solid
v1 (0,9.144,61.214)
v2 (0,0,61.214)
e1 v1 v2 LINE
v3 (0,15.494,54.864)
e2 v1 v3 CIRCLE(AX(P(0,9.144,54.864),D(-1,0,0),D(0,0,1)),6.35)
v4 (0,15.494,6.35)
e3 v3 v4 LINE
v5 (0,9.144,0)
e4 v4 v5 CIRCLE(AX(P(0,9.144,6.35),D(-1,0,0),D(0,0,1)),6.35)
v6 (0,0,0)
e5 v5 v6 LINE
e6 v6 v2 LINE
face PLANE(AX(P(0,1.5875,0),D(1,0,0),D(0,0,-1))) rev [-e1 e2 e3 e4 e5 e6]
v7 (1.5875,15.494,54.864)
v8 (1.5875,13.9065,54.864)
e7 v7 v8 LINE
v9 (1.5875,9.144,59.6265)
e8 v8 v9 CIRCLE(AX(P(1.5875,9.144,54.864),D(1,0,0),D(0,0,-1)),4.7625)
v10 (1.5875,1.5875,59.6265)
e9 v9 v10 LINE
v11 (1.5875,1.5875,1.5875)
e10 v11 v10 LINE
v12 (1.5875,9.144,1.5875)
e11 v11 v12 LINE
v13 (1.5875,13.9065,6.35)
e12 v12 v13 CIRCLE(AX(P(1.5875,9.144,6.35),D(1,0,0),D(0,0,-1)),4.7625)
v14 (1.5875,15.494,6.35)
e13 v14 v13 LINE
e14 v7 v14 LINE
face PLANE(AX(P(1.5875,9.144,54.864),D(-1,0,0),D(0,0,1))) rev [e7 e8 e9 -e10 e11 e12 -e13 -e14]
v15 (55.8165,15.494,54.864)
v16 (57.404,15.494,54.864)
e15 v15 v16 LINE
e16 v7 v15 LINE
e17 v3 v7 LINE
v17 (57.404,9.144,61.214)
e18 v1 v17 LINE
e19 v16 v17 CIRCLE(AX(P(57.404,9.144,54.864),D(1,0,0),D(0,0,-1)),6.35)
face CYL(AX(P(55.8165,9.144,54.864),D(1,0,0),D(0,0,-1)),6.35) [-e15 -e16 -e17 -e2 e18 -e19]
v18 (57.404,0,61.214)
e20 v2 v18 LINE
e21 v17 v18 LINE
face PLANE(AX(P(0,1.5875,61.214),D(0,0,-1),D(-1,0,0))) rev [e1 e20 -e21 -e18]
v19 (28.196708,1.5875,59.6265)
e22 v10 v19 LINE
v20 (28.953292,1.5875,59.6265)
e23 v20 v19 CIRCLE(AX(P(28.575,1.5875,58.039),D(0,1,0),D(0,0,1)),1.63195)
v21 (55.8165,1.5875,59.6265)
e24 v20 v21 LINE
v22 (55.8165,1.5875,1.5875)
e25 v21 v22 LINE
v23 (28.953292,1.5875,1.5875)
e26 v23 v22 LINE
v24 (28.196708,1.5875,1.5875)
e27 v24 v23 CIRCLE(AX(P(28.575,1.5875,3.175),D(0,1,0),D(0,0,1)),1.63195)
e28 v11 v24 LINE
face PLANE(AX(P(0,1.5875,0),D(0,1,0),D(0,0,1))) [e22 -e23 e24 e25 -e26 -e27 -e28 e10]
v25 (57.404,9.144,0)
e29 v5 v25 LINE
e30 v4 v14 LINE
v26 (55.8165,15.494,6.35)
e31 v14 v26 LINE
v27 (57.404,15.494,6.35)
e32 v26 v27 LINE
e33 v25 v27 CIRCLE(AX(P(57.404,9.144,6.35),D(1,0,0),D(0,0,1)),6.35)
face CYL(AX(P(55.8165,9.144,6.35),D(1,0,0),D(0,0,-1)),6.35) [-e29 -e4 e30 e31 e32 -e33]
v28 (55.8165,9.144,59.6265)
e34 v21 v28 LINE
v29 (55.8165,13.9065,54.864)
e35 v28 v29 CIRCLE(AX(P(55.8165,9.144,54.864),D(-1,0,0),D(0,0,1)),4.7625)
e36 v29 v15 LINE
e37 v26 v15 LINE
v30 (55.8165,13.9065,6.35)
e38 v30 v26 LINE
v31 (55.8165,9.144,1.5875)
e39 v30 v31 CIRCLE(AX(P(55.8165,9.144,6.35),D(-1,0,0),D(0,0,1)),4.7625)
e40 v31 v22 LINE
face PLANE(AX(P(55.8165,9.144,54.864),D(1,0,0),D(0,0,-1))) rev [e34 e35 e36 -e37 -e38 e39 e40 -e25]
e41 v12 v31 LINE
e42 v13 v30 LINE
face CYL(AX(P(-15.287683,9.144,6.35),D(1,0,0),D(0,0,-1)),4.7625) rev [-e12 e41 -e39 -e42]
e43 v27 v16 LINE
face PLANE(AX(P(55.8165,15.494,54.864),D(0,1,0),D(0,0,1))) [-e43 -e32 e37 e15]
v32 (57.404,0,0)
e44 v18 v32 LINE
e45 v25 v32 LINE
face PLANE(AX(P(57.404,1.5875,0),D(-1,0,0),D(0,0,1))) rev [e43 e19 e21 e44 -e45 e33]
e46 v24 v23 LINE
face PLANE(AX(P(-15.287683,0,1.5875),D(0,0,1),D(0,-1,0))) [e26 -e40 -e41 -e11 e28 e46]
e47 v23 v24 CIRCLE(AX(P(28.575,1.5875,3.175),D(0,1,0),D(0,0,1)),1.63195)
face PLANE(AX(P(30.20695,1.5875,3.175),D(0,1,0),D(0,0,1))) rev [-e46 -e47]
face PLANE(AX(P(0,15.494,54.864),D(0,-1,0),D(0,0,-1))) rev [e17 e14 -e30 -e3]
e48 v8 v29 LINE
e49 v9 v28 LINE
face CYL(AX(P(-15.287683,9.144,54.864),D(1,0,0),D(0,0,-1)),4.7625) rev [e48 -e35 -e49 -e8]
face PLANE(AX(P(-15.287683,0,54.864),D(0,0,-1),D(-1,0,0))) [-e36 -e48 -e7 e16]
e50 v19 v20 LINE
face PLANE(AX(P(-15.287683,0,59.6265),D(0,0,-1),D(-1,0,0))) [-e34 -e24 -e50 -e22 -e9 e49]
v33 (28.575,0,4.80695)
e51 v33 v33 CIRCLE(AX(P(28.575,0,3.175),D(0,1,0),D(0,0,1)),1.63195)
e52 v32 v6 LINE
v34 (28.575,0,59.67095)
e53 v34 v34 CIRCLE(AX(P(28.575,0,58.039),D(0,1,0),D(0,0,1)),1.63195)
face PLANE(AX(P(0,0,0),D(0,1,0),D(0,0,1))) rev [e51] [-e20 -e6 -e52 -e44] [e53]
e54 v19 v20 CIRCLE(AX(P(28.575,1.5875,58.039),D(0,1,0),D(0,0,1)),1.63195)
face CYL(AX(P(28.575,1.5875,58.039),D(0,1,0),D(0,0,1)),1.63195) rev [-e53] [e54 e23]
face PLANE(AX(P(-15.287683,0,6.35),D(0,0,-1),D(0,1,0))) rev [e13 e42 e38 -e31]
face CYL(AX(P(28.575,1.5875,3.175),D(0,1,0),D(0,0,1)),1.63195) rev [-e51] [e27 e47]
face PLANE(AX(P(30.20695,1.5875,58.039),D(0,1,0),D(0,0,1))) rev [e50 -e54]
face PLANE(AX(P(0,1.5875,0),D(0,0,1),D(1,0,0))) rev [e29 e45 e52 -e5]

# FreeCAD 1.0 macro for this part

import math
import FreeCAD as App
import Part
import Sketcher

V = App.Vector
Q = App.Units.Quantity


def add_polygon(sketch, points):
    """Adds a closed chain of lines whose ends are joined by coincident constraints."""
    first, n = sketch.GeometryCount, len(points)
    for a, b in zip(points, points[1:] + points[:1]):
        sketch.addGeometry(Part.LineSegment(App.Vector(*a, 0), App.Vector(*b, 0)), False)
    for i in range(n):
        sketch.addConstraint(Sketcher.Constraint("Coincident", first + i, 2, first + (i + 1) % n, 1))

doc = App.newDocument("Part")
params = doc.addObject("Spreadsheet::Sheet", "Params")
for row, (alias, value) in enumerate([
    ("sketch1_width", "2.26 in"),
    ("sketch1_height", "2.41 in"),
    ("pad1_length", "0.0625 in"),
    ("sketch2_radius", "0.25 in"),
    ("sketch2_height", "2.41 in"),
    ("pad2_length", "0.0625 in"),
    ("sketch3_radius", "0.25 in"),
    ("sketch3_radius2", "0.1875 in"),
    ("pad3_length", "2.135 in"),
    ("sketch4_radius", "0.25 in"),
    ("sketch4_width", "0.36 in"),
    ("sketch4_height", "2.41 in"),
    ("pad4_length", "0.0625 in"),
    ("sketch5_width", "0.0625 in"),
    ("groove_angle", "360 deg"),
    ("linearpattern_pitch", "2.16 in"),
], start=1):
    params.set(f"A{row}", alias)
    params.set(f"B{row}", "=" + value)
    params.setAlias(f"B{row}", alias)

body = doc.addObject("PartDesign::Body", "Body")

# Sketch on XZ plane
sketch1 = body.newObject("Sketcher::SketchObject", "Sketch")
sketch1.AttachmentSupport = (doc.getObject("XZ_Plane"), [""])
sketch1.MapMode = "FlatFace"
add_polygon(sketch1, [(0, 0), (0, 61), (57, 61), (57, 0)])  # lines 0-3
sketch1.addConstraint(Sketcher.Constraint("Vertical", 0))
sketch1.addConstraint(Sketcher.Constraint("Horizontal", 1))
sketch1.addConstraint(Sketcher.Constraint("Vertical", 2))
sketch1.addConstraint(Sketcher.Constraint("Horizontal", 3))
sketch1.addConstraint(Sketcher.Constraint("Coincident", 3, 2, -1, 1))
sketch1.addConstraint(Sketcher.Constraint("DistanceX", 1, 1, 1, 2, Q("2.26 in")))
sketch1.addConstraint(Sketcher.Constraint("DistanceY", 0, 1, 0, 2, Q("2.41 in")))
sketch1.setExpression("Constraints[9]", "Params.sketch1_width")
sketch1.setExpression("Constraints[10]", "Params.sketch1_height")
pad1 = body.newObject("PartDesign::Pad", "Pad")
pad1.Profile = sketch1
pad1.setExpression("Length", "Params.pad1_length")
pad1.Reversed = True

# Sketch on YZ plane
sketch2 = body.newObject("Sketcher::SketchObject", "Sketch001")
sketch2.AttachmentSupport = (doc.getObject("YZ_Plane"), [""])
sketch2.MapMode = "FlatFace"
sketch2.AttachmentOffset = App.Placement(V(0, 0, 2.26 * 25.4), App.Rotation())
sketch2.addGeometry(Part.LineSegment(V(2, 61, 0), V(2, 0, 0)), False)
sketch2.addGeometry(Part.LineSegment(V(2, 0, 0), V(9, 0, 0)), False)
sketch2.addGeometry(Part.ArcOfCircle(Part.Circle(V(9, 6, 0), V(0, 0, 1), 6), math.radians(-90), math.radians(0)), False)
sketch2.addGeometry(Part.LineSegment(V(15, 6, 0), V(15, 55, 0)), False)
sketch2.addGeometry(Part.ArcOfCircle(Part.Circle(V(9, 55, 0), V(0, 0, 1), 6), math.radians(0), math.radians(90)), False)
sketch2.addGeometry(Part.LineSegment(V(9, 61, 0), V(2, 61, 0)), False)
sketch2.addConstraint(Sketcher.Constraint("Coincident", 0, 2, 1, 1))
sketch2.addConstraint(Sketcher.Constraint("Tangent", 1, 2, 2, 1))
sketch2.addConstraint(Sketcher.Constraint("Tangent", 2, 2, 3, 1))
sketch2.addConstraint(Sketcher.Constraint("Tangent", 3, 2, 4, 1))
sketch2.addConstraint(Sketcher.Constraint("Tangent", 4, 2, 5, 1))
sketch2.addConstraint(Sketcher.Constraint("Coincident", 5, 2, 0, 1))
sketch2.addConstraint(Sketcher.Constraint("Vertical", 0))
sketch2.addConstraint(Sketcher.Constraint("Horizontal", 1))
sketch2.addConstraint(Sketcher.Constraint("Vertical", 3))
sketch2.addConstraint(Sketcher.Constraint("Horizontal", 5))
sketch2.addConstraint(Sketcher.Constraint("Equal", 2, 4))
sketch2.addConstraint(Sketcher.Constraint("PointOnObject", 0, 2, -1))
sketch2.addConstraint(Sketcher.Constraint("Radius", 2, Q("0.25 in")))
sketch2.addConstraint(Sketcher.Constraint("DistanceY", 0, 2, 0, 1, Q("2.41 in")))
sketch2.addConstraint(Sketcher.Constraint("DistanceX", -1, 1, 2, 3, Q("0.36 in")))
sketch2.addConstraint(Sketcher.Constraint("DistanceX", 1, 1, 1, 2, Q("0.2975 in")))
sketch2.setExpression("Constraints[12]", "Params.sketch2_radius")
sketch2.setExpression("Constraints[13]", "Params.sketch2_height")
pad2 = body.newObject("PartDesign::Pad", "Pad001")
pad2.Profile = sketch2
pad2.setExpression("Length", "Params.pad2_length")
pad2.Reversed = True

# Sketch on YZ plane
sketch3 = body.newObject("Sketcher::SketchObject", "Sketch002")
sketch3.AttachmentSupport = (doc.getObject("YZ_Plane"), [""])
sketch3.MapMode = "FlatFace"
sketch3.AttachmentOffset = App.Placement(V(0, 0, 2.1975 * 25.4), App.Rotation())
sketch3.addGeometry(Part.LineSegment(V(1.6, 1.6, 0), V(9.1, 1.6, 0)), False)
sketch3.addGeometry(Part.ArcOfCircle(Part.Circle(V(9.1, 6.4, 0), V(0, 0, 1), 4.8), math.radians(-90), math.radians(0)), False)
sketch3.addGeometry(Part.LineSegment(V(13.9, 6.3, 0), V(15.5, 6.3, 0)), False)
sketch3.addGeometry(Part.ArcOfCircle(Part.Circle(V(9.1, 6.3, 0), V(0, 0, 1), 6.3), math.radians(-90), math.radians(0)), False)
sketch3.addGeometry(Part.LineSegment(V(9.1, 0, 0), V(1.6, 0, 0)), False)
sketch3.addGeometry(Part.LineSegment(V(1.6, 0, 0), V(1.6, 1.6, 0)), False)
sketch3.addGeometry(Part.LineSegment(V(9.1, 59.6, 0), V(1.6, 59.6, 0)), False)
sketch3.addGeometry(Part.LineSegment(V(1.6, 59.6, 0), V(1.6, 61.2, 0)), False)
sketch3.addGeometry(Part.LineSegment(V(1.6, 61.2, 0), V(9.1, 61.2, 0)), False)
sketch3.addGeometry(Part.ArcOfCircle(Part.Circle(V(9.1, 54.9, 0), V(0, 0, 1), 6.3), math.radians(0), math.radians(90)), False)
sketch3.addGeometry(Part.LineSegment(V(15.5, 54.9, 0), V(13.9, 54.9, 0)), False)
sketch3.addGeometry(Part.ArcOfCircle(Part.Circle(V(9.1, 54.9, 0), V(0, 0, 1), 4.8), math.radians(0), math.radians(90)), False)
sketch3.addConstraint(Sketcher.Constraint("Tangent", 0, 2, 1, 1))
sketch3.addConstraint(Sketcher.Constraint("Coincident", 1, 2, 2, 1))
sketch3.addConstraint(Sketcher.Constraint("Coincident", 2, 2, 3, 2))
sketch3.addConstraint(Sketcher.Constraint("Tangent", 3, 1, 4, 1))
sketch3.addConstraint(Sketcher.Constraint("Coincident", 4, 2, 5, 1))
sketch3.addConstraint(Sketcher.Constraint("Coincident", 5, 2, 0, 1))
sketch3.addConstraint(Sketcher.Constraint("Coincident", 6, 2, 7, 1))
sketch3.addConstraint(Sketcher.Constraint("Coincident", 7, 2, 8, 1))
sketch3.addConstraint(Sketcher.Constraint("Tangent", 8, 2, 9, 2))
sketch3.addConstraint(Sketcher.Constraint("Coincident", 9, 1, 10, 1))
sketch3.addConstraint(Sketcher.Constraint("Coincident", 10, 2, 11, 1))
sketch3.addConstraint(Sketcher.Constraint("Tangent", 11, 2, 6, 1))
sketch3.addConstraint(Sketcher.Constraint("Horizontal", 0))
sketch3.addConstraint(Sketcher.Constraint("Horizontal", 2))
sketch3.addConstraint(Sketcher.Constraint("Horizontal", 4))
sketch3.addConstraint(Sketcher.Constraint("Vertical", 5))
sketch3.addConstraint(Sketcher.Constraint("Horizontal", 6))
sketch3.addConstraint(Sketcher.Constraint("Vertical", 7))
sketch3.addConstraint(Sketcher.Constraint("Horizontal", 8))
sketch3.addConstraint(Sketcher.Constraint("Horizontal", 10))
sketch3.addConstraint(Sketcher.Constraint("Coincident", 3, 3, 1, 3))
sketch3.addConstraint(Sketcher.Constraint("Coincident", 11, 3, 9, 3))
sketch3.addConstraint(Sketcher.Constraint("Equal", 3, 9))
sketch3.addConstraint(Sketcher.Constraint("Equal", 1, 11))
sketch3.addConstraint(Sketcher.Constraint("PointOnObject", 3, 1, -1))
sketch3.addConstraint(Sketcher.Constraint("Horizontal", 3, 3, 1, 2))
sketch3.addConstraint(Sketcher.Constraint("Horizontal", 11, 3, 9, 1))
sketch3.addConstraint(Sketcher.Constraint("Vertical", 3, 3, 9, 3))
sketch3.addConstraint(Sketcher.Constraint("Vertical", 5, 2, 6, 2))
sketch3.addConstraint(Sketcher.Constraint("Radius", 3, Q("0.25 in")))
sketch3.addConstraint(Sketcher.Constraint("Radius", 1, Q("0.1875 in")))
sketch3.addConstraint(Sketcher.Constraint("DistanceX", -1, 1, 1, 3, Q("0.36 in")))
sketch3.addConstraint(Sketcher.Constraint("DistanceY", -1, 1, 9, 3, Q("2.16 in")))
sketch3.addConstraint(Sketcher.Constraint("DistanceX", 0, 1, 0, 2, Q("0.2975 in")))
sketch3.setExpression("Constraints[29]", "Params.sketch3_radius")
sketch3.setExpression("Constraints[30]", "Params.sketch3_radius2")
pad3 = body.newObject("PartDesign::Pad", "Pad002")
pad3.Profile = sketch3
pad3.setExpression("Length", "Params.pad3_length")
pad3.Reversed = True

# Sketch on YZ plane
sketch4 = body.newObject("Sketcher::SketchObject", "Sketch003")
sketch4.AttachmentSupport = (doc.getObject("YZ_Plane"), [""])
sketch4.MapMode = "FlatFace"
sketch4.AttachmentOffset = App.Placement(V(0, 0, 0.0625 * 25.4), App.Rotation())
sketch4.addGeometry(Part.LineSegment(V(0, 0, 0), V(0, 61, 0)), False)
sketch4.addGeometry(Part.LineSegment(V(0, 61, 0), V(9, 61, 0)), False)
sketch4.addGeometry(Part.ArcOfCircle(Part.Circle(V(9, 55, 0), V(0, 0, 1), 6), math.radians(0), math.radians(90)), False)
sketch4.addGeometry(Part.LineSegment(V(15, 55, 0), V(15, 6, 0)), False)
sketch4.addGeometry(Part.ArcOfCircle(Part.Circle(V(9, 6, 0), V(0, 0, 1), 6), math.radians(-90), math.radians(0)), False)
sketch4.addGeometry(Part.LineSegment(V(9, 0, 0), V(0, 0, 0)), False)
sketch4.addConstraint(Sketcher.Constraint("Coincident", 0, 2, 1, 1))
sketch4.addConstraint(Sketcher.Constraint("Tangent", 1, 2, 2, 2))
sketch4.addConstraint(Sketcher.Constraint("Tangent", 2, 1, 3, 1))
sketch4.addConstraint(Sketcher.Constraint("Tangent", 3, 2, 4, 2))
sketch4.addConstraint(Sketcher.Constraint("Tangent", 4, 1, 5, 1))
sketch4.addConstraint(Sketcher.Constraint("Coincident", 5, 2, 0, 1))
sketch4.addConstraint(Sketcher.Constraint("Vertical", 0))
sketch4.addConstraint(Sketcher.Constraint("Horizontal", 1))
sketch4.addConstraint(Sketcher.Constraint("Vertical", 3))
sketch4.addConstraint(Sketcher.Constraint("Horizontal", 5))
sketch4.addConstraint(Sketcher.Constraint("Coincident", 5, 2, -1, 1))
sketch4.addConstraint(Sketcher.Constraint("Equal", 2, 4))
sketch4.addConstraint(Sketcher.Constraint("Radius", 2, Q("0.25 in")))
sketch4.addConstraint(Sketcher.Constraint("DistanceX", 1, 1, 1, 2, Q("0.36 in")))
sketch4.addConstraint(Sketcher.Constraint("DistanceY", 0, 1, 0, 2, Q("2.41 in")))
sketch4.setExpression("Constraints[12]", "Params.sketch4_radius")
sketch4.setExpression("Constraints[13]", "Params.sketch4_width")
sketch4.setExpression("Constraints[14]", "Params.sketch4_height")
pad4 = body.newObject("PartDesign::Pad", "Pad003")
pad4.Profile = sketch4
pad4.setExpression("Length", "Params.pad4_length")
pad4.Reversed = True

# Sketch on YZ plane
sketch5 = body.newObject("Sketcher::SketchObject", "Sketch004")
sketch5.AttachmentSupport = (doc.getObject("YZ_Plane"), [""])
sketch5.MapMode = "FlatFace"
sketch5.AttachmentOffset = App.Placement(V(0, 0, 1.125 * 25.4), App.Rotation())
add_polygon(sketch5, [(0, 58), (1.6, 58), (1.6, 59.7), (0, 59.7)])  # lines 0-3
sketch5.addGeometry(Part.LineSegment(V(1.6, 58, 0), V(0, 58, 0)), True)  # axis
sketch5.addConstraint(Sketcher.Constraint("Horizontal", 0))
sketch5.addConstraint(Sketcher.Constraint("Vertical", 1))
sketch5.addConstraint(Sketcher.Constraint("Horizontal", 2))
sketch5.addConstraint(Sketcher.Constraint("Vertical", 3))
sketch5.addConstraint(Sketcher.Constraint("Horizontal", 4))
sketch5.addConstraint(Sketcher.Constraint("Coincident", 4, 1, 0, 2))
sketch5.addConstraint(Sketcher.Constraint("PointOnObject", 2, 2, -2))
sketch5.addConstraint(Sketcher.Constraint("PointOnObject", 4, 2, -2))
sketch5.addConstraint(Sketcher.Constraint("DistanceX", 0, 1, 0, 2, Q("0.0625 in")))
sketch5.addConstraint(Sketcher.Constraint("DistanceY", -1, 1, 0, 2, Q("2.285 in")))
sketch5.addConstraint(Sketcher.Constraint("DistanceY", 1, 1, 1, 2, Q("1.63195 mm")))
sketch5.setExpression("Constraints[12]", "Params.sketch5_width")
groove = body.newObject("PartDesign::Groove", "Groove")
groove.Profile = sketch5
groove.ReferenceAxis = (sketch5, ["Axis0"])
groove.setExpression("Angle", "Params.groove_angle")
doc.recompute()

linearpattern = body.newObject("PartDesign::LinearPattern", "LinearPattern")
linearpattern.Originals = [groove]
linearpattern.Direction = (doc.getObject("Z_Axis"), [""])
linearpattern.Mode = "offset"
linearpattern.setExpression("Offset", "Params.linearpattern_pitch")
linearpattern.Occurrences = 2
linearpattern.Reversed = True
body.Tip = linearpattern

doc.recompute()
